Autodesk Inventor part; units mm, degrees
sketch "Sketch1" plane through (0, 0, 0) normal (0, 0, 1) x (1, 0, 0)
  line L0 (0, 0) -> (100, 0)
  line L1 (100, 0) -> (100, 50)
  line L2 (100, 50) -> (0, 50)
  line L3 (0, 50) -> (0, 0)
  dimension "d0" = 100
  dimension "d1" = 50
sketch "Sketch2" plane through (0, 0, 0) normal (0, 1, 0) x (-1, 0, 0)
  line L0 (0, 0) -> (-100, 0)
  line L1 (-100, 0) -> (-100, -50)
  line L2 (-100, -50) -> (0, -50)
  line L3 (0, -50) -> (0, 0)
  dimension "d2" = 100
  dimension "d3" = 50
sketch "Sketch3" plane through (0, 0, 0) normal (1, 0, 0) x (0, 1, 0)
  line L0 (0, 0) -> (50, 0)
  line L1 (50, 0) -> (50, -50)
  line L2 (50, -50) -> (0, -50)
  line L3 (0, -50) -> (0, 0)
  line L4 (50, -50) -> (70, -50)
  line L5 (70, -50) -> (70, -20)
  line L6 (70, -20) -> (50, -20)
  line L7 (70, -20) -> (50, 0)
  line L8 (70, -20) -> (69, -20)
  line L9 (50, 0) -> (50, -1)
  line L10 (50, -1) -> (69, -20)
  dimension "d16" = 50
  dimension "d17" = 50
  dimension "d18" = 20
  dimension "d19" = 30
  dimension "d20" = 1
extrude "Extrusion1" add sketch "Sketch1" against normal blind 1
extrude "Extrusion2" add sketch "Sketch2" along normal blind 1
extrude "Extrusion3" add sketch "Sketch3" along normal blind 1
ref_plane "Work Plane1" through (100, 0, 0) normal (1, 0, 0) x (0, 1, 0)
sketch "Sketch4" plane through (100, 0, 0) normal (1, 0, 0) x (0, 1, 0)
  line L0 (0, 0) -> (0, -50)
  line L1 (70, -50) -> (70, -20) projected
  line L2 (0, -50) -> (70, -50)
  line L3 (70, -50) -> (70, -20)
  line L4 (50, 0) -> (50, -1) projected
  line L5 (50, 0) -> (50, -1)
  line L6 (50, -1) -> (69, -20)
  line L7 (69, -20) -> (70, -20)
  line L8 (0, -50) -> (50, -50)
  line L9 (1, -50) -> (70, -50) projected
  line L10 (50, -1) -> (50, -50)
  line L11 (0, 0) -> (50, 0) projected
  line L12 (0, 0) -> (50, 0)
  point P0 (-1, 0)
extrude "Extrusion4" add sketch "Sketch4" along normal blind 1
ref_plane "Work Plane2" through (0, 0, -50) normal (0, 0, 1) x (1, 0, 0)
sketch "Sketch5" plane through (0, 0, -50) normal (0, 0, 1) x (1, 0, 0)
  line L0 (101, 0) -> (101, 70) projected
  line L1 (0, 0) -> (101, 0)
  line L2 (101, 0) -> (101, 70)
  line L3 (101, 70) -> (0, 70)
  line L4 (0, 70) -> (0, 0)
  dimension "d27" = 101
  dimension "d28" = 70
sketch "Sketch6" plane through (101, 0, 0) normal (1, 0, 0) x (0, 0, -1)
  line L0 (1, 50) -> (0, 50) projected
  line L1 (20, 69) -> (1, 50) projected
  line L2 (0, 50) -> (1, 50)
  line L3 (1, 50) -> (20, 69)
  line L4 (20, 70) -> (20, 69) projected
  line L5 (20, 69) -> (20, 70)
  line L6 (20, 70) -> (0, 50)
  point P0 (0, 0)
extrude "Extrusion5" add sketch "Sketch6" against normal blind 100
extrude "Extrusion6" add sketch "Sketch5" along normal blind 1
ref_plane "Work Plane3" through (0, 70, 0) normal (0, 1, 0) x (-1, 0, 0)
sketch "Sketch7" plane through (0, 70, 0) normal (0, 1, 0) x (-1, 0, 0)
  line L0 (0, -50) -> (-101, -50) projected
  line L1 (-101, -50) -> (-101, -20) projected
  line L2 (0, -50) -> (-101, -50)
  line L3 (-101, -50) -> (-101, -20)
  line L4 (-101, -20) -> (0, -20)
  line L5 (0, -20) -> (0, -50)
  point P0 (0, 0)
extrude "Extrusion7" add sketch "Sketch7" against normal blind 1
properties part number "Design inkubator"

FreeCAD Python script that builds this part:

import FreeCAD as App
import Part
import Sketcher

V = App.Vector
Q = App.Units.Quantity


def add_polygon(sketch, points):
    """Adds a closed chain of lines whose ends are joined by coincident constraints."""
    first, n = sketch.GeometryCount, len(points)
    for a, b in zip(points, points[1:] + points[:1]):
        sketch.addGeometry(Part.LineSegment(App.Vector(*a, 0), App.Vector(*b, 0)), False)
    for i in range(n):
        sketch.addConstraint(Sketcher.Constraint("Coincident", first + i, 2, first + (i + 1) % n, 1))

doc = App.newDocument("Part")
body = doc.addObject("PartDesign::Body", "Body")

sketch1 = body.newObject("Sketcher::SketchObject", "Sketch")
sketch1.AttachmentSupport = (doc.getObject("XY_Plane"), [""])
sketch1.MapMode = "FlatFace"
add_polygon(sketch1, [(0, 50), (0, 0), (100, 0), (100, 50)])
sketch1.addConstraint([
    Sketcher.Constraint("Vertical", 0),
    Sketcher.Constraint("Horizontal", 1),
    Sketcher.Constraint("Vertical", 2),
    Sketcher.Constraint("Horizontal", 3),
    Sketcher.Constraint("Coincident", 0, 2, -1, 1),
    Sketcher.Constraint("DistanceX", 1, 1, 1, 2, Q("100 mm")),
    Sketcher.Constraint("DistanceY", 0, 2, 0, 1, Q("50 mm")),
])
pad1 = body.newObject("PartDesign::Pad", "Pad")
pad1.Profile = sketch1
pad1.Length = 1
pad1.Reversed = True

sketch2 = body.newObject("Sketcher::SketchObject", "Sketch001")
sketch2.AttachmentSupport = (doc.getObject("XZ_Plane"), [""])
sketch2.MapMode = "FlatFace"
add_polygon(sketch2, [(0, -50), (0, 0), (100, 0), (100, -50)])
sketch2.addConstraint([
    Sketcher.Constraint("Vertical", 0),
    Sketcher.Constraint("Horizontal", 1),
    Sketcher.Constraint("Vertical", 2),
    Sketcher.Constraint("Horizontal", 3),
    Sketcher.Constraint("Coincident", 0, 2, -1, 1),
    Sketcher.Constraint("DistanceX", 1, 1, 1, 2, Q("100 mm")),
    Sketcher.Constraint("DistanceY", 0, 1, 0, 2, Q("50 mm")),
])
pad2 = body.newObject("PartDesign::Pad", "Pad001")
pad2.Profile = sketch2
pad2.Length = 1
pad2.Reversed = True

sketch3 = body.newObject("Sketcher::SketchObject", "Sketch002")
sketch3.AttachmentSupport = (doc.getObject("YZ_Plane"), [""])
sketch3.MapMode = "FlatFace"
add_polygon(sketch3, [(50, 0), (0, 0), (0, -50), (70, -50), (70, -20)])
sketch3.addConstraint([
    Sketcher.Constraint("Horizontal", 0),
    Sketcher.Constraint("Vertical", 1),
    Sketcher.Constraint("Horizontal", 2),
    Sketcher.Constraint("Vertical", 3),
    Sketcher.Constraint("Coincident", 0, 2, -1, 1),
    Sketcher.Constraint("Equal", 0, 1),
    Sketcher.Constraint("DistanceX", 0, 2, 0, 1, Q("50 mm")),
    Sketcher.Constraint("DistanceY", 3, 1, 3, 2, Q("30 mm")),
    Sketcher.Constraint("DistanceX", 4, 2, 3, 2, Q("20 mm")),
])
pad3 = body.newObject("PartDesign::Pad", "Pad002")
pad3.Profile = sketch3
pad3.Length = 1

sketch4 = body.newObject("Sketcher::SketchObject", "Sketch003")
sketch4.AttachmentSupport = (doc.getObject("YZ_Plane"), [""])
sketch4.MapMode = "FlatFace"
sketch4.AttachmentOffset = App.Placement(V(0, 0, 100), App.Rotation())
add_polygon(sketch4, [(50, 0), (0, 0), (0, -50), (70, -50), (70, -20), (69, -20), (50, -1)])
sketch4.addConstraint([
    Sketcher.Constraint("Horizontal", 0),
    Sketcher.Constraint("Vertical", 1),
    Sketcher.Constraint("Horizontal", 2),
    Sketcher.Constraint("Vertical", 3),
    Sketcher.Constraint("Horizontal", 4),
    Sketcher.Constraint("Vertical", 6),
    Sketcher.Constraint("Coincident", 0, 2, -1, 1),
    Sketcher.Constraint("Equal", 0, 1),
    Sketcher.Constraint("Equal", 4, 6),
    Sketcher.Constraint("DistanceX", 0, 2, 0, 1, Q("50 mm")),
    Sketcher.Constraint("DistanceX", 2, 1, 2, 2, Q("70 mm")),
    Sketcher.Constraint("DistanceX", 4, 2, 4, 1, Q("1 mm")),
    Sketcher.Constraint("DistanceY", 3, 1, 3, 2, Q("30 mm")),
])
pad4 = body.newObject("PartDesign::Pad", "Pad003")
pad4.Profile = sketch4
pad4.Length = 1

sketch5 = body.newObject("Sketcher::SketchObject", "Sketch004")
sketch5.AttachmentSupport = (doc.getObject("YZ_Plane"), [""])
sketch5.MapMode = "FlatFace"
sketch5.AttachmentOffset = App.Placement(V(0, 0, 101), App.Rotation())
add_polygon(sketch5, [(50, 0), (50, -1), (69, -20), (70, -20)])
sketch5.addConstraint([
    Sketcher.Constraint("Vertical", 0),
    Sketcher.Constraint("Horizontal", 2),
    Sketcher.Constraint("PointOnObject", 3, 2, -1),
    Sketcher.Constraint("Parallel", 1, 3),
    Sketcher.Constraint("Equal", 2, 0),
    Sketcher.Constraint("DistanceX", 2, 1, 2, 2, Q("1 mm")),
    Sketcher.Constraint("DistanceX", -1, 1, 0, 2, Q("50 mm")),
    Sketcher.Constraint("DistanceX", -1, 1, 1, 2, Q("69 mm")),
])
pad5 = body.newObject("PartDesign::Pad", "Pad004")
pad5.Profile = sketch5
pad5.Length = 100
pad5.Reversed = True

sketch6 = body.newObject("Sketcher::SketchObject", "Sketch005")
sketch6.AttachmentSupport = (doc.getObject("XY_Plane"), [""])
sketch6.MapMode = "FlatFace"
sketch6.AttachmentOffset = App.Placement(V(0, 0, -50), App.Rotation())
add_polygon(sketch6, [(0, 0), (101, 0), (101, 70), (0, 70)])
sketch6.addConstraint([
    Sketcher.Constraint("Horizontal", 0),
    Sketcher.Constraint("Vertical", 1),
    Sketcher.Constraint("Horizontal", 2),
    Sketcher.Constraint("Vertical", 3),
    Sketcher.Constraint("Coincident", 3, 2, -1, 1),
    Sketcher.Constraint("DistanceX", 0, 1, 0, 2, Q("101 mm")),
    Sketcher.Constraint("DistanceY", 1, 1, 1, 2, Q("70 mm")),
])
pad6 = body.newObject("PartDesign::Pad", "Pad005")
pad6.Profile = sketch6
pad6.Length = 1

sketch7 = body.newObject("Sketcher::SketchObject", "Sketch006")
sketch7.AttachmentSupport = (doc.getObject("XZ_Plane"), [""])
sketch7.MapMode = "FlatFace"
sketch7.AttachmentOffset = App.Placement(V(0, 0, -70), App.Rotation())
add_polygon(sketch7, [(101, -50), (0, -50), (0, -20), (101, -20)])
sketch7.addConstraint([
    Sketcher.Constraint("Horizontal", 0),
    Sketcher.Constraint("Vertical", 1),
    Sketcher.Constraint("Horizontal", 2),
    Sketcher.Constraint("Vertical", 3),
    Sketcher.Constraint("PointOnObject", 0, 2, -2),
    Sketcher.Constraint("DistanceX", 0, 2, 0, 1, Q("101 mm")),
    Sketcher.Constraint("DistanceY", 1, 1, 1, 2, Q("30 mm")),
    Sketcher.Constraint("DistanceY", 0, 2, -1, 1, Q("50 mm")),
])
pad7 = body.newObject("PartDesign::Pad", "Pad006")
pad7.Profile = sketch7
pad7.Length = 1

doc.recompute()
